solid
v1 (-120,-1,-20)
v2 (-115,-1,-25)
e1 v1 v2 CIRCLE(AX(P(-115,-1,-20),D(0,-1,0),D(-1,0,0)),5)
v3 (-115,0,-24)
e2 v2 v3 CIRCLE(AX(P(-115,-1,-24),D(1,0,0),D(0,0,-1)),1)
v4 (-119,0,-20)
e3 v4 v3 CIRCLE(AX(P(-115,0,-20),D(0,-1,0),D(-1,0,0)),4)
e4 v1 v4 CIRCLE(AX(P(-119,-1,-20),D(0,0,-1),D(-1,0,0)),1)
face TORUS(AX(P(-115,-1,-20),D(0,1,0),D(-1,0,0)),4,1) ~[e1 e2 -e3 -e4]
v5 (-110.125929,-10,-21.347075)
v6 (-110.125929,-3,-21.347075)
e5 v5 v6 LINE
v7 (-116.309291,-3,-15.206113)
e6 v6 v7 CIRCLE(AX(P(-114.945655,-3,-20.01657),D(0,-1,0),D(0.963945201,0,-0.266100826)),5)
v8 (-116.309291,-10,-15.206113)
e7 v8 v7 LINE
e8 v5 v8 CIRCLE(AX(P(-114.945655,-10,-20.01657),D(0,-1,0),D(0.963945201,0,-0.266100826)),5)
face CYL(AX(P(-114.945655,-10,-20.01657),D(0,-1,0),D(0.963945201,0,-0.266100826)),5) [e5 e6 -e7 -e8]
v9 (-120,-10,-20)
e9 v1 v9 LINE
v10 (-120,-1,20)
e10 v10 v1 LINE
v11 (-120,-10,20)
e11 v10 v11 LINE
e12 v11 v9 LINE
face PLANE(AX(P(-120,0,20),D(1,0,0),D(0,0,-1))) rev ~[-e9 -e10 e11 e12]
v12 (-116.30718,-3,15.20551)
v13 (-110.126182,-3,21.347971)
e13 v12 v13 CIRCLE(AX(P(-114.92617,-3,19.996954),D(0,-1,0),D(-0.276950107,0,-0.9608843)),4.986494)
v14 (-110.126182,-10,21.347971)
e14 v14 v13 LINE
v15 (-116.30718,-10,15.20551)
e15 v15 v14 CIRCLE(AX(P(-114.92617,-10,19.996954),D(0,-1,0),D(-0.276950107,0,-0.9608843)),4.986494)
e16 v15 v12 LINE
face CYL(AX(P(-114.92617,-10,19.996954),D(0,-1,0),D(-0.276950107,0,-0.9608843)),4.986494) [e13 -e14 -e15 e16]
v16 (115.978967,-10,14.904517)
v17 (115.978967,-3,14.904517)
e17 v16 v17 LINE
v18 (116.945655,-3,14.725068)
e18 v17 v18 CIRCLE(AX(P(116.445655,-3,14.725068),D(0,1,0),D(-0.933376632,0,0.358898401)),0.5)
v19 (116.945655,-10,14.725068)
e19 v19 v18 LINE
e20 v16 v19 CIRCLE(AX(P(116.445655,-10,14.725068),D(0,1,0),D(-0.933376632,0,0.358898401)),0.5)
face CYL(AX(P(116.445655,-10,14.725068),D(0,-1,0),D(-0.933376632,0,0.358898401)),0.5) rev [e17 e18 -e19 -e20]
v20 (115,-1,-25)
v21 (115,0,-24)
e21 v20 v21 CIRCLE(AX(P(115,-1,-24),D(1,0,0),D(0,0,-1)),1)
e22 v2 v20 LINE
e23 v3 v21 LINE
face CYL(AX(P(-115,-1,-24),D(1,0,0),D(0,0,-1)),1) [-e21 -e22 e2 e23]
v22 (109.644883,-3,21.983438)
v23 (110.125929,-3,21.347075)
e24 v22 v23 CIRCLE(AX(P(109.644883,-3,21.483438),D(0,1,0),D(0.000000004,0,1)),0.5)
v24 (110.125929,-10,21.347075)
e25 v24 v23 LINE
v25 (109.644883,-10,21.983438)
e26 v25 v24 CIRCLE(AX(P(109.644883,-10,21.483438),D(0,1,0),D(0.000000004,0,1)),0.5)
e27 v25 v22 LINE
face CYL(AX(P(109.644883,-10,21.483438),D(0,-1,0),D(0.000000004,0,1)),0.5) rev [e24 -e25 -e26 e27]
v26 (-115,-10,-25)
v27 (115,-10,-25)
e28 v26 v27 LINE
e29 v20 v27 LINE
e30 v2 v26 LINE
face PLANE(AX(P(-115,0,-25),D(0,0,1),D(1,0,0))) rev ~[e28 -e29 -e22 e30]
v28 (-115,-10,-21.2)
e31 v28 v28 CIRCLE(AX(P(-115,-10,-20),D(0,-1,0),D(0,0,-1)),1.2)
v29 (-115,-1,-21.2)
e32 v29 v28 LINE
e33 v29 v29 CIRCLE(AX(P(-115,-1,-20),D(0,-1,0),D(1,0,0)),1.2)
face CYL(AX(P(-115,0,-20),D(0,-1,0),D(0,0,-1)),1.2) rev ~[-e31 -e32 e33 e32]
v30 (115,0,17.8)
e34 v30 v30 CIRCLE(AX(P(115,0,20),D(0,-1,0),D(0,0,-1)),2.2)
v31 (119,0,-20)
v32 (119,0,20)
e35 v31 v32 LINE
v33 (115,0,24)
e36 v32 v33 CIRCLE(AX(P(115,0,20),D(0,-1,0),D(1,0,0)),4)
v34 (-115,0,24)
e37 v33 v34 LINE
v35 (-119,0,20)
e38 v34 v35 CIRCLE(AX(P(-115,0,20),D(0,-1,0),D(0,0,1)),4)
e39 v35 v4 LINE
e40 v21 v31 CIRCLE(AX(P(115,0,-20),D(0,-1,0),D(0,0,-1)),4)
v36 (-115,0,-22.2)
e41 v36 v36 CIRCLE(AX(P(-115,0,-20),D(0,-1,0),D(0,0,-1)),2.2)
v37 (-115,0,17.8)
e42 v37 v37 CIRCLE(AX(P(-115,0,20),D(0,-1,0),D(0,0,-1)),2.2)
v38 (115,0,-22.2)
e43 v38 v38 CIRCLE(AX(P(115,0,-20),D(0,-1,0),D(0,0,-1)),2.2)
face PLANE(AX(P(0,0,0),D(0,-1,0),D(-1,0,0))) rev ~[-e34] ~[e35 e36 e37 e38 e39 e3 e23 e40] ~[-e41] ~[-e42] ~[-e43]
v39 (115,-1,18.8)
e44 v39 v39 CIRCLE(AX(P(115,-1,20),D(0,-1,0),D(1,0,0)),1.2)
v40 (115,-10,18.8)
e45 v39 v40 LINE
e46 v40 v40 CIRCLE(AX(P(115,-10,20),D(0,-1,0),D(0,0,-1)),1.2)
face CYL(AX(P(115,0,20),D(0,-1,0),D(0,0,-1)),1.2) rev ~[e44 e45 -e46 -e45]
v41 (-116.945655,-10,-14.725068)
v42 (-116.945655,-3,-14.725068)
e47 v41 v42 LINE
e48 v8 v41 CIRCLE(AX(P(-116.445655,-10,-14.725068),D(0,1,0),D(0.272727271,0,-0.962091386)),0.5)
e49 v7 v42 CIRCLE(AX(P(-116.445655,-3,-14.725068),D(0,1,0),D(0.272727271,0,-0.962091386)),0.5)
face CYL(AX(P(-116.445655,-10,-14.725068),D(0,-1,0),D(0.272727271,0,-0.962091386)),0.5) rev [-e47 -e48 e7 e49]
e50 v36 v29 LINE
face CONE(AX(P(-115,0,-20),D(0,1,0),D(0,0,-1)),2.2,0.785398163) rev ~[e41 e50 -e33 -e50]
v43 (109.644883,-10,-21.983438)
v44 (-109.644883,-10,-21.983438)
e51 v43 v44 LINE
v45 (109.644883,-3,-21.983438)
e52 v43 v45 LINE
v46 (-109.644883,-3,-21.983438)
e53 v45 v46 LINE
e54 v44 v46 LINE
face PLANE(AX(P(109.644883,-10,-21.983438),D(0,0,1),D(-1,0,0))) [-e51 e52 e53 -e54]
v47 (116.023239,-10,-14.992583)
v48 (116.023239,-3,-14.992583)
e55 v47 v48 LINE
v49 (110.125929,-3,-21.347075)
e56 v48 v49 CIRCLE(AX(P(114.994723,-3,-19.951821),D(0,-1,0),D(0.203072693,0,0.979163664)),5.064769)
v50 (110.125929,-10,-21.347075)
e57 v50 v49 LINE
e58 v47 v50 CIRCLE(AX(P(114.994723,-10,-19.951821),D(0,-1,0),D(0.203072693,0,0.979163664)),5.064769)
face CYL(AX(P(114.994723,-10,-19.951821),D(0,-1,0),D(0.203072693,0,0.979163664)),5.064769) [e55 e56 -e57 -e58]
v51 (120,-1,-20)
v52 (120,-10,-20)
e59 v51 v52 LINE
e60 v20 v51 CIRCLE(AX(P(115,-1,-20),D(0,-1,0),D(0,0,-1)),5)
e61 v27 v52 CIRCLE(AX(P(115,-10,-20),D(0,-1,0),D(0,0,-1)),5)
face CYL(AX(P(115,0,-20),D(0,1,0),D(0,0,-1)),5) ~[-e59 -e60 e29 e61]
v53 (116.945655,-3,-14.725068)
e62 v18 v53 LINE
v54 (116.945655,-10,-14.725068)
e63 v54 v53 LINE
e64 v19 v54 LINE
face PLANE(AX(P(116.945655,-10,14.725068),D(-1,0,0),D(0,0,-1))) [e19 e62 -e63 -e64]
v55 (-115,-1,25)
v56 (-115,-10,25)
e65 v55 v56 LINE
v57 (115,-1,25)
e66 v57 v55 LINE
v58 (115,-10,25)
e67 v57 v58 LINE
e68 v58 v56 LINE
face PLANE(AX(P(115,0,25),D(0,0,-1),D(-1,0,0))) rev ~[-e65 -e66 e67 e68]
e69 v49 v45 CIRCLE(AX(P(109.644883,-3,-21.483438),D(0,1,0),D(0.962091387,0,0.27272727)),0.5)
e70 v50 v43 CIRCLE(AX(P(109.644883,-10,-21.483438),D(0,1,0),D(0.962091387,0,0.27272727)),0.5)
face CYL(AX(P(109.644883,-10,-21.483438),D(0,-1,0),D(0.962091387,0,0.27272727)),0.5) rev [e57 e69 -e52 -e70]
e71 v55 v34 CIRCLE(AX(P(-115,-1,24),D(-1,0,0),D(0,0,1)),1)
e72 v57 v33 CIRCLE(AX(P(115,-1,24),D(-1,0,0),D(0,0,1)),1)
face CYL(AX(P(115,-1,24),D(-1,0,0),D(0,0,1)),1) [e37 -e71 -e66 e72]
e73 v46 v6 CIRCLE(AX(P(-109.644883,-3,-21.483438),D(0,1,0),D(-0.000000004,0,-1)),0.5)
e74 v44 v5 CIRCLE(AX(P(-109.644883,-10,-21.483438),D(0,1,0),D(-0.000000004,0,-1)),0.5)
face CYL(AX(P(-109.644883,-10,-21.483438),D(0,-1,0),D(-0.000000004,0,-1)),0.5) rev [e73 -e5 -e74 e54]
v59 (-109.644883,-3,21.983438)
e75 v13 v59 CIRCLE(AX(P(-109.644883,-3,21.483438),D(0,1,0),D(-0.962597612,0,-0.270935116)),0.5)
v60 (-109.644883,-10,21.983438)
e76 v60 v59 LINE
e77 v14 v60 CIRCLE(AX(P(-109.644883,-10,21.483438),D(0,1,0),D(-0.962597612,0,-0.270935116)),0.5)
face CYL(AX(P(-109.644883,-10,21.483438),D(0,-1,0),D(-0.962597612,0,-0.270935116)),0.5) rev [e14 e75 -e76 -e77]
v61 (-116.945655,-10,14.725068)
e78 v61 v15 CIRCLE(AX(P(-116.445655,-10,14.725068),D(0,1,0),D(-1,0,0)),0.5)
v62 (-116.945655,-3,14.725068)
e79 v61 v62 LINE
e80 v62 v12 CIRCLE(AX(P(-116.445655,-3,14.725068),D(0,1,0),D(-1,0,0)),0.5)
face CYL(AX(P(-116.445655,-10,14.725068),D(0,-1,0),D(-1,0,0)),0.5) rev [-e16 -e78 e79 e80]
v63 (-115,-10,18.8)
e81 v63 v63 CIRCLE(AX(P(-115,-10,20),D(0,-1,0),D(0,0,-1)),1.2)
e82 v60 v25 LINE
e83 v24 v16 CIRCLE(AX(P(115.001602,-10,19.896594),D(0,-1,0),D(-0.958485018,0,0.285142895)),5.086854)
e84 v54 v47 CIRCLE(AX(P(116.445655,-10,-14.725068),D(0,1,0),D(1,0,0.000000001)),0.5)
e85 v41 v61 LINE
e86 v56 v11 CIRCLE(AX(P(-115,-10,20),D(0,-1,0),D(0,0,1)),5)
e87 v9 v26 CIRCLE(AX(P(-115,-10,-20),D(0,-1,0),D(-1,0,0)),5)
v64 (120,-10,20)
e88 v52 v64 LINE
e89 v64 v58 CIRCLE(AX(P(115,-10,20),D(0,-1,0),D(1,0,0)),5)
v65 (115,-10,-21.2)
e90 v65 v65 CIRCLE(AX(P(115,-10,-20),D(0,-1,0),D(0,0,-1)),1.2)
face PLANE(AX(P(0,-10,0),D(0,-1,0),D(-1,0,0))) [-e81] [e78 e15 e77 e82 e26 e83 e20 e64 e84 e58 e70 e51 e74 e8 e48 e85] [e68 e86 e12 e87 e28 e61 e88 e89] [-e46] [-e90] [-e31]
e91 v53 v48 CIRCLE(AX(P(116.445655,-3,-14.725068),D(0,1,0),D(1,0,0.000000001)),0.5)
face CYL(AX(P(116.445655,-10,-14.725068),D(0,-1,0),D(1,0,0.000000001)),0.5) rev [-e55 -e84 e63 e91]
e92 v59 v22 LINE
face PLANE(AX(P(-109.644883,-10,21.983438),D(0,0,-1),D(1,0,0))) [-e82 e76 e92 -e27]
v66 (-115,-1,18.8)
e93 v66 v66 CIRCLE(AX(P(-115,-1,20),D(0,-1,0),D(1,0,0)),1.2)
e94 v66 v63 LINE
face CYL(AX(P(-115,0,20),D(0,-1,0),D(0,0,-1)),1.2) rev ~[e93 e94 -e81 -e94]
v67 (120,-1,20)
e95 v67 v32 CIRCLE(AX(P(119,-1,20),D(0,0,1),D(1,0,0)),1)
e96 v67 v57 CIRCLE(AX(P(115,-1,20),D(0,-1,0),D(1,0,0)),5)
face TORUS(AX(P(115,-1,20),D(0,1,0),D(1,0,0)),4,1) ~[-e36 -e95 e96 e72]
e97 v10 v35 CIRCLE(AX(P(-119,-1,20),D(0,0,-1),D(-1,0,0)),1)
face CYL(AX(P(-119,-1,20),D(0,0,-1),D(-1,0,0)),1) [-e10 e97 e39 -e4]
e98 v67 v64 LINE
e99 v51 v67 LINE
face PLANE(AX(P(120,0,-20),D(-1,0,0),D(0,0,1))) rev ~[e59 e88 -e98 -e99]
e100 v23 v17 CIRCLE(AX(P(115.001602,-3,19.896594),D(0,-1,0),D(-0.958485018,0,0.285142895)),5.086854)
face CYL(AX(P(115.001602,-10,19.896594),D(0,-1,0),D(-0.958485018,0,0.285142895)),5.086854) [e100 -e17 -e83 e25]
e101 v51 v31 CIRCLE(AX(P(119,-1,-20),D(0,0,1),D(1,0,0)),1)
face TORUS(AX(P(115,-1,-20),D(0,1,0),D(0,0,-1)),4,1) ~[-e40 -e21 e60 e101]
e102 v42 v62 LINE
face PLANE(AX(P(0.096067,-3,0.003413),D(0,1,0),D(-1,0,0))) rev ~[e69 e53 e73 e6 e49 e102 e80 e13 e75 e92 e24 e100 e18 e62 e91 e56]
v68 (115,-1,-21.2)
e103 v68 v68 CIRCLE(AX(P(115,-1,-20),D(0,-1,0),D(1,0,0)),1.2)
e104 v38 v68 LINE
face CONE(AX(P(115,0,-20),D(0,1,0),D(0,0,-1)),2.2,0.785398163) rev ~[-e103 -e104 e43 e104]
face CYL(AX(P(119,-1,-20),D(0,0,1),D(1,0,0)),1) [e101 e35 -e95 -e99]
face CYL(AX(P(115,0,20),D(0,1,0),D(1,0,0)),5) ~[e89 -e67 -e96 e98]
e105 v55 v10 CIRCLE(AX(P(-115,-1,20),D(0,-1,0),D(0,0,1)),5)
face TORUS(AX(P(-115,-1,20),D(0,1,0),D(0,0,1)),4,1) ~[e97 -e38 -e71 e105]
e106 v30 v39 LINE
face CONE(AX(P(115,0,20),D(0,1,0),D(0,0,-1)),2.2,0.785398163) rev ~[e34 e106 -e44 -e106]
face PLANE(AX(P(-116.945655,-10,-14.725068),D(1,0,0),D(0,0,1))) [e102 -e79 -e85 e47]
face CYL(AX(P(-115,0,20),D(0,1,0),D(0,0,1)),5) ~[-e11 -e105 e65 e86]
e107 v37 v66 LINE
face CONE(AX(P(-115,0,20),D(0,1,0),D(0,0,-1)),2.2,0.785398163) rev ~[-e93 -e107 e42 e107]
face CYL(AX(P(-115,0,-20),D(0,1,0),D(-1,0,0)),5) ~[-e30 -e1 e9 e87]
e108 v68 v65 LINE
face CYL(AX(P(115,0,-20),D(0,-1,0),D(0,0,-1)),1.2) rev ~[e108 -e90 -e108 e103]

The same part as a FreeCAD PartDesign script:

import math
import FreeCAD as App
import Part
import Sketcher


def edges_at(feature, points):
    """Names of the edges that pass closest to the given points."""
    edges = feature.Shape.Edges
    near = lambda p: min(range(len(edges)), key=lambda i: edges[i].distToShape(Part.Vertex(*p))[0])
    return sorted({f"Edge{near(p) + 1}" for p in points})

doc = App.newDocument("Part")
body = doc.addObject("PartDesign::Body", "Body")

# Sketch on XZ plane
sketch1 = body.newObject("Sketcher::SketchObject", "Sketch")
sketch1.AttachmentSupport = (doc.getObject("XZ_Plane"), [""])
sketch1.MapMode = "FlatFace"
sketch1.addGeometry(Part.LineSegment(App.Vector(115, -25, 0), App.Vector(-115, -25, 0)), False)
sketch1.addGeometry(Part.ArcOfCircle(Part.Circle(App.Vector(-115, -20, 0), App.Vector(0, 0, 1), 5), math.radians(180), math.radians(270)), False)
sketch1.addGeometry(Part.LineSegment(App.Vector(-120, -20, 0), App.Vector(-120, 20, 0)), False)
sketch1.addGeometry(Part.ArcOfCircle(Part.Circle(App.Vector(-115, 20, 0), App.Vector(0, 0, 1), 5), math.radians(90), math.radians(180)), False)
sketch1.addGeometry(Part.LineSegment(App.Vector(-115, 25, 0), App.Vector(115, 25, 0)), False)
sketch1.addGeometry(Part.ArcOfCircle(Part.Circle(App.Vector(115, 20, 0), App.Vector(0, 0, 1), 5), math.radians(0), math.radians(90)), False)
sketch1.addGeometry(Part.LineSegment(App.Vector(120, 20, 0), App.Vector(120, -20, 0)), False)
sketch1.addGeometry(Part.ArcOfCircle(Part.Circle(App.Vector(115, -20, 0), App.Vector(0, 0, 1), 5), math.radians(-90), math.radians(0)), False)
sketch1.addConstraint(Sketcher.Constraint("Tangent", 0, 2, 1, 2))
sketch1.addConstraint(Sketcher.Constraint("Tangent", 1, 1, 2, 1))
sketch1.addConstraint(Sketcher.Constraint("Tangent", 2, 2, 3, 2))
sketch1.addConstraint(Sketcher.Constraint("Tangent", 3, 1, 4, 1))
sketch1.addConstraint(Sketcher.Constraint("Tangent", 4, 2, 5, 2))
sketch1.addConstraint(Sketcher.Constraint("Tangent", 5, 1, 6, 1))
sketch1.addConstraint(Sketcher.Constraint("Tangent", 6, 2, 7, 2))
sketch1.addConstraint(Sketcher.Constraint("Tangent", 7, 1, 0, 1))
sketch1.addConstraint(Sketcher.Constraint("Horizontal", 0))
sketch1.addConstraint(Sketcher.Constraint("Vertical", 2))
sketch1.addConstraint(Sketcher.Constraint("Horizontal", 4))
sketch1.addConstraint(Sketcher.Constraint("Vertical", 6))
sketch1.addConstraint(Sketcher.Constraint("Equal", 1, 3))
sketch1.addConstraint(Sketcher.Constraint("Equal", 3, 5))
sketch1.addConstraint(Sketcher.Constraint("Equal", 5, 7))
sketch1.addConstraint(Sketcher.Constraint("Symmetric", 1, 3, 5, 3, -1, 1))
sketch1.addConstraint(Sketcher.Constraint("Radius", 1, 5.0))
sketch1.addConstraint(Sketcher.Constraint("DistanceX", 0, 2, 0, 1, 230.0))
sketch1.addConstraint(Sketcher.Constraint("DistanceY", 2, 1, 2, 2, 40.0))
pad1 = body.newObject("PartDesign::Pad", "Pad")
pad1.Profile = sketch1
pad1.Length = 10

# Sketch on XZ plane
sketch2 = body.newObject("Sketcher::SketchObject", "Sketch001")
sketch2.AttachmentSupport = (doc.getObject("XZ_Plane"), [""])
sketch2.MapMode = "FlatFace"
sketch2.AttachmentOffset = App.Placement(App.Vector(0, 0, 10), App.Rotation())
sketch2.addGeometry(Part.ArcOfCircle(Part.Circle(App.Vector(115, 19.9, 0), App.Vector(0, 0, 1), 5.09), math.radians(163), math.radians(281)), False)
sketch2.addGeometry(Part.ArcOfCircle(Part.Circle(App.Vector(109.64, 21.48, 0), App.Vector(0, 0, 1), 0.5), math.radians(-16), math.radians(90)), False)
sketch2.addGeometry(Part.LineSegment(App.Vector(109.64, 21.98, 0), App.Vector(-109.64, 21.98, 0)), False)
sketch2.addGeometry(Part.ArcOfCircle(Part.Circle(App.Vector(-109.64, 21.48, 0), App.Vector(0, 0, 1), 0.5), math.radians(90), math.radians(196)), False)
sketch2.addGeometry(Part.ArcOfCircle(Part.Circle(App.Vector(-114.93, 20, 0), App.Vector(0, 0, 1), 4.99), math.radians(-106), math.radians(16)), False)
sketch2.addGeometry(Part.ArcOfCircle(Part.Circle(App.Vector(-116.45, 14.73, 0), App.Vector(0, 0, 1), 0.5), math.radians(74), math.radians(180)), False)
sketch2.addGeometry(Part.LineSegment(App.Vector(-116.95, 14.73, 0), App.Vector(-116.95, -14.73, 0)), False)
sketch2.addGeometry(Part.ArcOfCircle(Part.Circle(App.Vector(-116.45, -14.73, 0), App.Vector(0, 0, 1), 0.5), math.radians(180), math.radians(286)), False)
sketch2.addGeometry(Part.ArcOfCircle(Part.Circle(App.Vector(-114.95, -20.02, 0), App.Vector(0, 0, 1), 5), math.radians(-15), math.radians(106)), False)
sketch2.addGeometry(Part.ArcOfCircle(Part.Circle(App.Vector(-109.64, -21.48, 0), App.Vector(0, 0, 1), 0.5), math.radians(164), math.radians(270)), False)
sketch2.addGeometry(Part.LineSegment(App.Vector(-109.64, -21.98, 0), App.Vector(109.64, -21.98, 0)), False)
sketch2.addGeometry(Part.ArcOfCircle(Part.Circle(App.Vector(109.64, -21.48, 0), App.Vector(0, 0, 1), 0.5), math.radians(-90), math.radians(16)), False)
sketch2.addGeometry(Part.ArcOfCircle(Part.Circle(App.Vector(114.99, -19.95, 0), App.Vector(0, 0, 1), 5.06), math.radians(78), math.radians(196)), False)
sketch2.addGeometry(Part.ArcOfCircle(Part.Circle(App.Vector(116.45, -14.73, 0), App.Vector(0, 0, 1), 0.5), math.radians(-148), math.radians(0)), False)
sketch2.addGeometry(Part.LineSegment(App.Vector(116.95, -14.73, 0), App.Vector(116.95, 14.73, 0)), False)
sketch2.addGeometry(Part.ArcOfCircle(Part.Circle(App.Vector(116.45, 14.73, 0), App.Vector(0, 0, 1), 0.5), math.radians(0), math.radians(159)), False)
sketch2.addConstraint(Sketcher.Constraint("Coincident", 0, 1, 1, 1))
sketch2.addConstraint(Sketcher.Constraint("Tangent", 1, 2, 2, 1))
sketch2.addConstraint(Sketcher.Constraint("Tangent", 2, 2, 3, 1))
sketch2.addConstraint(Sketcher.Constraint("Tangent", 3, 2, 4, 2))
sketch2.addConstraint(Sketcher.Constraint("Tangent", 4, 1, 5, 1))
sketch2.addConstraint(Sketcher.Constraint("Tangent", 5, 2, 6, 1))
sketch2.addConstraint(Sketcher.Constraint("Tangent", 6, 2, 7, 1))
sketch2.addConstraint(Sketcher.Constraint("Tangent", 7, 2, 8, 2))
sketch2.addConstraint(Sketcher.Constraint("Coincident", 8, 1, 9, 1))
sketch2.addConstraint(Sketcher.Constraint("Tangent", 9, 2, 10, 1))
sketch2.addConstraint(Sketcher.Constraint("Tangent", 10, 2, 11, 1))
sketch2.addConstraint(Sketcher.Constraint("Coincident", 11, 2, 12, 2))
sketch2.addConstraint(Sketcher.Constraint("Coincident", 12, 1, 13, 1))
sketch2.addConstraint(Sketcher.Constraint("Tangent", 13, 2, 14, 1))
sketch2.addConstraint(Sketcher.Constraint("Tangent", 14, 2, 15, 1))
sketch2.addConstraint(Sketcher.Constraint("Coincident", 15, 2, 0, 2))
sketch2.addConstraint(Sketcher.Constraint("Horizontal", 2))
sketch2.addConstraint(Sketcher.Constraint("Vertical", 6))
sketch2.addConstraint(Sketcher.Constraint("Horizontal", 10))
sketch2.addConstraint(Sketcher.Constraint("Vertical", 14))
sketch2.addConstraint(Sketcher.Constraint("Equal", 1, 3))
sketch2.addConstraint(Sketcher.Constraint("Equal", 3, 5))
sketch2.addConstraint(Sketcher.Constraint("Equal", 5, 7))
sketch2.addConstraint(Sketcher.Constraint("Equal", 7, 9))
sketch2.addConstraint(Sketcher.Constraint("Equal", 9, 11))
sketch2.addConstraint(Sketcher.Constraint("Equal", 11, 13))
sketch2.addConstraint(Sketcher.Constraint("Equal", 13, 15))
sketch2.addConstraint(Sketcher.Constraint("Symmetric", 1, 3, 9, 3, -1, 1))
sketch2.addConstraint(Sketcher.Constraint("Symmetric", 5, 3, 13, 3, -1, 1))
sketch2.addConstraint(Sketcher.Constraint("Symmetric", 8, 1, 11, 2, -2))
sketch2.addConstraint(Sketcher.Constraint("Horizontal", 7, 3, 13, 3))
sketch2.addConstraint(Sketcher.Constraint("Horizontal", 5, 3, 15, 3))
sketch2.addConstraint(Sketcher.Constraint("Vertical", 3, 3, 9, 3))
sketch2.addConstraint(Sketcher.Constraint("Vertical", 0, 1, 11, 2))
sketch2.addConstraint(Sketcher.Constraint("Radius", 8, 5.0))
sketch2.addConstraint(Sketcher.Constraint("Radius", 1, 0.5))
sketch2.addConstraint(Sketcher.Constraint("DistanceX", 6, 2, 8, 3, 2.0))
sketch2.addConstraint(Sketcher.Constraint("Radius", 12, 5.064769))
sketch2.addConstraint(Sketcher.Constraint("Radius", 0, 5.086854))
sketch2.addConstraint(Sketcher.Constraint("Radius", 4, 4.986494))
sketch2.addConstraint(Sketcher.Constraint("DistanceX", -1, 1, 0, 3, 115.001602))
sketch2.addConstraint(Sketcher.Constraint("DistanceX", 3, 2, 3, 3, 0.481299))
sketch2.addConstraint(Sketcher.Constraint("DistanceX", 2, 2, 2, 1, 219.289767))
sketch2.addConstraint(Sketcher.Constraint("DistanceY", 6, 2, 6, 1, 29.450136))
sketch2.addConstraint(Sketcher.Constraint("DistanceY", 12, 3, -1, 1, 19.951821))
sketch2.addConstraint(Sketcher.Constraint("DistanceX", -1, 1, 0, 1, 110.125929))
pocket1 = body.newObject("PartDesign::Pocket", "Pocket")
pocket1.Profile = sketch2
pocket1.Length = 7

# Sketch on XZ plane
sketch3 = body.newObject("Sketcher::SketchObject", "Sketch002")
sketch3.AttachmentSupport = (doc.getObject("XZ_Plane"), [""])
sketch3.MapMode = "FlatFace"
sketch3.addGeometry(Part.Circle(App.Vector(-115, -20, 0), App.Vector(0, 0, 1), 1.2), False)
sketch3.addGeometry(Part.Circle(App.Vector(-115, 20, 0), App.Vector(0, 0, 1), 1.2), False)
sketch3.addGeometry(Part.Circle(App.Vector(115, -20, 0), App.Vector(0, 0, 1), 1.2), False)
sketch3.addGeometry(Part.Circle(App.Vector(115, 20, 0), App.Vector(0, 0, 1), 1.2), False)
sketch3.addConstraint(Sketcher.Constraint("Equal", 0, 1))
sketch3.addConstraint(Sketcher.Constraint("Equal", 1, 2))
sketch3.addConstraint(Sketcher.Constraint("Equal", 2, 3))
sketch3.addConstraint(Sketcher.Constraint("Symmetric", 1, 3, 2, 3, -1, 1))
sketch3.addConstraint(Sketcher.Constraint("Symmetric", 0, 3, 3, 3, -1, 1))
sketch3.addConstraint(Sketcher.Constraint("Symmetric", 0, 3, 2, 3, -2))
sketch3.addConstraint(Sketcher.Constraint("Diameter", 0, 2.4))
sketch3.addConstraint(Sketcher.Constraint("DistanceX", 0, 3, -1, 1, 115.0))
sketch3.addConstraint(Sketcher.Constraint("DistanceY", 0, 3, -1, 1, 20.0))
doc.recompute()
hole = body.newObject("PartDesign::Hole", "Hole")
hole.Profile = sketch3
hole.ThreadType = "None"
hole.Diameter = 2.4
hole.DepthType = "ThroughAll"
hole.HoleCutType = "Countersink"
hole.HoleCutDiameter = 4.4
hole.HoleCutCountersinkAngle = 90
hole.Reversed = True
doc.recompute()

fillet = body.newObject("PartDesign::Fillet", "Fillet")
fillet.Base = (hole, edges_at(hole, [
    (-120, 0, 0),
    (-118.536, 0, -23.536),
    (0, 0, -25),
    (118.536, 0, -23.536),
    (120, 0, 0),
    (118.536, 0, 23.536),
    (0, 0, 25),
    (-118.536, 0, 23.536),
]))
fillet.Radius = 1

doc.recompute()
